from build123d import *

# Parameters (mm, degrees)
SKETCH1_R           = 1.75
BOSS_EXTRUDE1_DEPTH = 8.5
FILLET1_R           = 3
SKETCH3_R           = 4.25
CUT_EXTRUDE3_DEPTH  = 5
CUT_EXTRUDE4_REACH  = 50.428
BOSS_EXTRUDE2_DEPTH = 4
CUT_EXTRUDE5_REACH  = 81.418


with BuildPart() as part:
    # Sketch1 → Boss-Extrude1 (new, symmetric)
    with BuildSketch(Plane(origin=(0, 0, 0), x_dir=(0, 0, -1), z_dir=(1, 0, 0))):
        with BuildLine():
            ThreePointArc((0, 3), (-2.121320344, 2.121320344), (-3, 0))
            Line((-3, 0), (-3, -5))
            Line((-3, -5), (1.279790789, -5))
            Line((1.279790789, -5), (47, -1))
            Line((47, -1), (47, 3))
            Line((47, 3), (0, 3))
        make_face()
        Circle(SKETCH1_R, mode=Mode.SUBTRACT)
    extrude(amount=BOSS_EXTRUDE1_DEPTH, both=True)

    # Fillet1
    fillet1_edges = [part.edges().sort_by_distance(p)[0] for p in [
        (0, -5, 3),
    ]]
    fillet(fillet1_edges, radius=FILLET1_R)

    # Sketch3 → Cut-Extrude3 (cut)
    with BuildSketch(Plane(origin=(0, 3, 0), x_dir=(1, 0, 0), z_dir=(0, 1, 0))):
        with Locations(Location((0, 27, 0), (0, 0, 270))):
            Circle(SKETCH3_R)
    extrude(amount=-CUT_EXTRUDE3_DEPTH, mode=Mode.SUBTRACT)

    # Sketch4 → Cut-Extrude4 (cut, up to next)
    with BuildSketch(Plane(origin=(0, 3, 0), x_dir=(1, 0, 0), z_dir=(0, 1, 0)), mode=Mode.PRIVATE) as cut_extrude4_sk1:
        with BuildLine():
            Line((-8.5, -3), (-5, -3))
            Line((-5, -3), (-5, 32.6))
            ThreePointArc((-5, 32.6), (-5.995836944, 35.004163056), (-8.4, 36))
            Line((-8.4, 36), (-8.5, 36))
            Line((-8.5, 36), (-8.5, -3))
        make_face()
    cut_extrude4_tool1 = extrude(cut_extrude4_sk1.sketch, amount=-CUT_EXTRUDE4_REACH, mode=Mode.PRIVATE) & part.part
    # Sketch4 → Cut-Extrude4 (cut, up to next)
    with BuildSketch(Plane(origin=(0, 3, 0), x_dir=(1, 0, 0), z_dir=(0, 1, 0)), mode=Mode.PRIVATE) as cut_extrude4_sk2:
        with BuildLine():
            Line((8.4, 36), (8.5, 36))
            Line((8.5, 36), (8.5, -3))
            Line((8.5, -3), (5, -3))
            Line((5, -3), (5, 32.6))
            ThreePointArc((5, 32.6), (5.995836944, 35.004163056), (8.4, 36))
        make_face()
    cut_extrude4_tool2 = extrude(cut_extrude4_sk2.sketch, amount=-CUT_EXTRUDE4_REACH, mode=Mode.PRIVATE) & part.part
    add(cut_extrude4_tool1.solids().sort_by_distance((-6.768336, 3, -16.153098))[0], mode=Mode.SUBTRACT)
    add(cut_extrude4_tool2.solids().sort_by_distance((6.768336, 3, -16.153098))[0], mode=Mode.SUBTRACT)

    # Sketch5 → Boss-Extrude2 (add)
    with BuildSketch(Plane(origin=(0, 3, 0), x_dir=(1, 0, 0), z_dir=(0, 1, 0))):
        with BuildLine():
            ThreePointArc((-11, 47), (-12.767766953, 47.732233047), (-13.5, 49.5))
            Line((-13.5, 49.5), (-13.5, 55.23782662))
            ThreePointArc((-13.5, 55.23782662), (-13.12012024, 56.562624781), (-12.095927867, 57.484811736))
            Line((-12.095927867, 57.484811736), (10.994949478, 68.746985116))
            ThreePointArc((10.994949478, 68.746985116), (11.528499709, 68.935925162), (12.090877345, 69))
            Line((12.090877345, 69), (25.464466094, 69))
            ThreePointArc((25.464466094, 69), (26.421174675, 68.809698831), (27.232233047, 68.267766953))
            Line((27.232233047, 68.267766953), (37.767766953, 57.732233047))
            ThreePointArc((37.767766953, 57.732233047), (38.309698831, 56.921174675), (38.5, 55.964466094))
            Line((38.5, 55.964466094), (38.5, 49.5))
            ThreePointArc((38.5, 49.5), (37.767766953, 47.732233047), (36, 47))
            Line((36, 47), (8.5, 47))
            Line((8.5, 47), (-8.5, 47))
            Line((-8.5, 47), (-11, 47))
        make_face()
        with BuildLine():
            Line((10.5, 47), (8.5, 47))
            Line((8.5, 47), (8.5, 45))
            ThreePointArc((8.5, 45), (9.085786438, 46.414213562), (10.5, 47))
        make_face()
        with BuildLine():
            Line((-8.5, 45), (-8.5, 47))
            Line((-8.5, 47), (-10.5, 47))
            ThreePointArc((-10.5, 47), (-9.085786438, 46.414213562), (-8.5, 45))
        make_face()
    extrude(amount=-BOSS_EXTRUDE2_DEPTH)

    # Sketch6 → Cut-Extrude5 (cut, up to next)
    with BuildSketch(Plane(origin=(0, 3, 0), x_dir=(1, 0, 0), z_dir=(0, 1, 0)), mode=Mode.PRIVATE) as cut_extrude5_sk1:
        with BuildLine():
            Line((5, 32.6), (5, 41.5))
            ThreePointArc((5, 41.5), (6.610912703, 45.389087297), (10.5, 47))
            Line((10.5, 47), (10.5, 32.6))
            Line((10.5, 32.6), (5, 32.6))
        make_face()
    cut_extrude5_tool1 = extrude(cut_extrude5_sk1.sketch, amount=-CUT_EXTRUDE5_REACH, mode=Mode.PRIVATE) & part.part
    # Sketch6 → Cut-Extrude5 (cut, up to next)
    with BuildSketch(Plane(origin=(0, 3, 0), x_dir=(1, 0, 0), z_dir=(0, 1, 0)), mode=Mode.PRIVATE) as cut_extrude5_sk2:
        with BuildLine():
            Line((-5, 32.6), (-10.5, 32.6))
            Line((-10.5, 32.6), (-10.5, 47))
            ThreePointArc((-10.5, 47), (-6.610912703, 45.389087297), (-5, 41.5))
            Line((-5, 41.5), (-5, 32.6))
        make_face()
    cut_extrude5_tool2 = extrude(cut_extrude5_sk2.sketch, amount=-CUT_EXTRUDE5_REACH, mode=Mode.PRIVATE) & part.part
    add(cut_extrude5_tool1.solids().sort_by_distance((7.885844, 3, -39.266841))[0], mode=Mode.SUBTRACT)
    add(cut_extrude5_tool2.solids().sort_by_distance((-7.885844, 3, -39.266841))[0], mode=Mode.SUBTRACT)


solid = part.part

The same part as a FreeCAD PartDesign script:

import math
import FreeCAD as App
import Part
import Sketcher
from FreeCAD import Vector
Q = App.Units.Quantity


def edges_at(feature, points):
    """Names of the edges that pass closest to the given points."""
    edges = feature.Shape.Edges
    near = lambda p: min(range(len(edges)), key=lambda i: edges[i].distToShape(Part.Vertex(*p))[0])
    return sorted({f"Edge{near(p) + 1}" for p in points})

doc = App.newDocument("Part")
body = doc.addObject("PartDesign::Body", "Body")

# Sketch on YZ plane
sketch1 = body.newObject("Sketcher::SketchObject", "Sketch")
sketch1.AttachmentSupport = (doc.getObject("YZ_Plane"), [""])
sketch1.MapMode = "FlatFace"
sketch1.addGeometry(Part.ArcOfCircle(Part.Circle(Vector(0, 0, 0), Vector(0, 0, 1), 3), math.radians(0), math.radians(90)), False)
sketch1.addGeometry(Part.LineSegment(Vector(0, 3, 0), Vector(-5, 3, 0)), False)
sketch1.addGeometry(Part.LineSegment(Vector(-5, 3, 0), Vector(-5, -1.3, 0)), False)
sketch1.addGeometry(Part.LineSegment(Vector(-5, -1.3, 0), Vector(-1, -47, 0)), False)
sketch1.addGeometry(Part.LineSegment(Vector(-1, -47, 0), Vector(3, -47, 0)), False)
sketch1.addGeometry(Part.LineSegment(Vector(3, -47, 0), Vector(3, 0, 0)), False)
sketch1.addGeometry(Part.Circle(Vector(0, 0, 0), Vector(0, 0, 1), 1.8), False)
sketch1.addConstraint(Sketcher.Constraint("Tangent", 0, 2, 1, 1))
sketch1.addConstraint(Sketcher.Constraint("Coincident", 1, 2, 2, 1))
sketch1.addConstraint(Sketcher.Constraint("Coincident", 2, 2, 3, 1))
sketch1.addConstraint(Sketcher.Constraint("Coincident", 3, 2, 4, 1))
sketch1.addConstraint(Sketcher.Constraint("Coincident", 4, 2, 5, 1))
sketch1.addConstraint(Sketcher.Constraint("Tangent", 5, 2, 0, 1))
sketch1.addConstraint(Sketcher.Constraint("Horizontal", 1))
sketch1.addConstraint(Sketcher.Constraint("Vertical", 2))
sketch1.addConstraint(Sketcher.Constraint("Horizontal", 4))
sketch1.addConstraint(Sketcher.Constraint("Vertical", 5))
sketch1.addConstraint(Sketcher.Constraint("Coincident", 0, 3, -1, 1))
sketch1.addConstraint(Sketcher.Constraint("Coincident", 6, 3, -1, 1))
sketch1.addConstraint(Sketcher.Constraint("Radius", 0, 3.0))
sketch1.addConstraint(Sketcher.Constraint("Diameter", 6, 3.5))
sketch1.addConstraint(Sketcher.Constraint("DistanceX", 1, 2, 1, 1, 5.0))
sketch1.addConstraint(Sketcher.Constraint("DistanceX", 4, 1, 4, 2, 4.0))
sketch1.addConstraint(Sketcher.Constraint("DistanceY", 5, 1, 5, 2, 47.0))
sketch1.addConstraint(Sketcher.Constraint("Angle", 3, Q("-85 deg")))
pad1 = body.newObject("PartDesign::Pad", "Pad")
pad1.Profile = sketch1
pad1.Length = 17
pad1.Midplane = True
doc.recompute()

fillet = body.newObject("PartDesign::Fillet", "Fillet")
fillet.Base = (pad1, edges_at(pad1, [(0, -5, 3)]))
fillet.Radius = 3

# Sketch on XZ plane
sketch2 = body.newObject("Sketcher::SketchObject", "Sketch001")
sketch2.AttachmentSupport = (doc.getObject("XZ_Plane"), [""])
sketch2.MapMode = "FlatFace"
sketch2.AttachmentOffset = App.Placement(Vector(0, 0, -3), App.Rotation())
sketch2.addGeometry(Part.Circle(Vector(0, -27, 0), Vector(0, 0, 1), 4.2), False)
sketch2.addConstraint(Sketcher.Constraint("PointOnObject", 0, 3, -2))
sketch2.addConstraint(Sketcher.Constraint("Diameter", 0, 8.5))
sketch2.addConstraint(Sketcher.Constraint("DistanceY", 0, 3, -1, 1, 27.0))
pocket1 = body.newObject("PartDesign::Pocket", "Pocket")
pocket1.Profile = sketch2
pocket1.Length = 5
pocket1.Reversed = True

# Sketch on XZ plane
sketch3 = body.newObject("Sketcher::SketchObject", "Sketch002")
sketch3.AttachmentSupport = (doc.getObject("XZ_Plane"), [""])
sketch3.MapMode = "FlatFace"
sketch3.AttachmentOffset = App.Placement(Vector(0, 0, -3), App.Rotation())
sketch3.addGeometry(Part.LineSegment(Vector(-8.5, 3, 0), Vector(-5, 3, 0)), False)
sketch3.addGeometry(Part.LineSegment(Vector(-5, 3, 0), Vector(-5, -32.6, 0)), False)
sketch3.addGeometry(Part.ArcOfCircle(Part.Circle(Vector(-8.4, -32.6, 0), Vector(0, 0, 1), 3.4), math.radians(-90), math.radians(0)), False)
sketch3.addGeometry(Part.LineSegment(Vector(-8.4, -36, 0), Vector(-8.5, -36, 0)), False)
sketch3.addGeometry(Part.LineSegment(Vector(-8.5, -36, 0), Vector(-8.5, 3, 0)), False)
sketch3.addConstraint(Sketcher.Constraint("Coincident", 0, 2, 1, 1))
sketch3.addConstraint(Sketcher.Constraint("Tangent", 1, 2, 2, 2))
sketch3.addConstraint(Sketcher.Constraint("Tangent", 2, 1, 3, 1))
sketch3.addConstraint(Sketcher.Constraint("Coincident", 3, 2, 4, 1))
sketch3.addConstraint(Sketcher.Constraint("Coincident", 4, 2, 0, 1))
sketch3.addConstraint(Sketcher.Constraint("Horizontal", 0))
sketch3.addConstraint(Sketcher.Constraint("Vertical", 1))
sketch3.addConstraint(Sketcher.Constraint("Horizontal", 3))
sketch3.addConstraint(Sketcher.Constraint("Vertical", 4))
sketch3.addConstraint(Sketcher.Constraint("Radius", 2, 3.4))
sketch3.addConstraint(Sketcher.Constraint("DistanceY", 4, 1, 4, 2, 39.0))
sketch3.addConstraint(Sketcher.Constraint("DistanceX", 0, 1, 0, 2, 3.5))
sketch3.addConstraint(Sketcher.Constraint("DistanceX", 0, 2, -1, 1, 5.0))
sketch3.addConstraint(Sketcher.Constraint("DistanceY", -1, 1, 0, 2, 3.0))
pocket2 = body.newObject("PartDesign::Pocket", "Pocket001")
pocket2.Profile = sketch3
pocket2.Type = "UpToFirst"
pocket2.Reversed = True

# Sketch on XZ plane
sketch4 = body.newObject("Sketcher::SketchObject", "Sketch003")
sketch4.AttachmentSupport = (doc.getObject("XZ_Plane"), [""])
sketch4.MapMode = "FlatFace"
sketch4.AttachmentOffset = App.Placement(Vector(0, 0, -3), App.Rotation())
sketch4.addGeometry(Part.LineSegment(Vector(8.5, -36, 0), Vector(8.4, -36, 0)), False)
sketch4.addGeometry(Part.ArcOfCircle(Part.Circle(Vector(8.4, -32.6, 0), Vector(0, 0, 1), 3.4), math.radians(180), math.radians(270)), False)
sketch4.addGeometry(Part.LineSegment(Vector(5, -32.6, 0), Vector(5, 3, 0)), False)
sketch4.addGeometry(Part.LineSegment(Vector(5, 3, 0), Vector(8.5, 3, 0)), False)
sketch4.addGeometry(Part.LineSegment(Vector(8.5, 3, 0), Vector(8.5, -36, 0)), False)
sketch4.addConstraint(Sketcher.Constraint("Tangent", 0, 2, 1, 2))
sketch4.addConstraint(Sketcher.Constraint("Tangent", 1, 1, 2, 1))
sketch4.addConstraint(Sketcher.Constraint("Coincident", 2, 2, 3, 1))
sketch4.addConstraint(Sketcher.Constraint("Coincident", 3, 2, 4, 1))
sketch4.addConstraint(Sketcher.Constraint("Coincident", 4, 2, 0, 1))
sketch4.addConstraint(Sketcher.Constraint("Horizontal", 0))
sketch4.addConstraint(Sketcher.Constraint("Vertical", 2))
sketch4.addConstraint(Sketcher.Constraint("Horizontal", 3))
sketch4.addConstraint(Sketcher.Constraint("Vertical", 4))
sketch4.addConstraint(Sketcher.Constraint("Radius", 1, 3.4))
sketch4.addConstraint(Sketcher.Constraint("DistanceY", 4, 2, 4, 1, 39.0))
sketch4.addConstraint(Sketcher.Constraint("DistanceX", 0, 2, 0, 1, 0.1))
sketch4.addConstraint(Sketcher.Constraint("DistanceY", 0, 2, -1, 1, 36.0))
sketch4.addConstraint(Sketcher.Constraint("DistanceX", -1, 1, 1, 1, 5.0))
pocket3 = body.newObject("PartDesign::Pocket", "Pocket002")
pocket3.Profile = sketch4
pocket3.Type = "UpToFirst"
pocket3.Reversed = True

# Sketch on XZ plane
sketch5 = body.newObject("Sketcher::SketchObject", "Sketch004")
sketch5.AttachmentSupport = (doc.getObject("XZ_Plane"), [""])
sketch5.MapMode = "FlatFace"
sketch5.AttachmentOffset = App.Placement(Vector(0, 0, -3), App.Rotation())
sketch5.addGeometry(Part.ArcOfCircle(Part.Circle(Vector(-11, -49.5, 0), Vector(0, 0, 1), 2.5), math.radians(90), math.radians(180)), False)
sketch5.addGeometry(Part.LineSegment(Vector(-11, -47, 0), Vector(-10.5, -47, 0)), False)
sketch5.addGeometry(Part.ArcOfCircle(Part.Circle(Vector(-10.5, -45, 0), Vector(0, 0, 1), 2), math.radians(-90), math.radians(0)), False)
sketch5.addGeometry(Part.LineSegment(Vector(-8.5, -45, 0), Vector(-8.5, -47, 0)), False)
sketch5.addGeometry(Part.LineSegment(Vector(-8.5, -47, 0), Vector(8.5, -47, 0)), False)
sketch5.addGeometry(Part.LineSegment(Vector(8.5, -47, 0), Vector(8.5, -45, 0)), False)
sketch5.addGeometry(Part.ArcOfCircle(Part.Circle(Vector(10.5, -45, 0), Vector(0, 0, 1), 2), math.radians(-180), math.radians(-90)), False)
sketch5.addGeometry(Part.LineSegment(Vector(10.5, -47, 0), Vector(36, -47, 0)), False)
sketch5.addGeometry(Part.ArcOfCircle(Part.Circle(Vector(36, -49.5, 0), Vector(0, 0, 1), 2.5), math.radians(0), math.radians(90)), False)
sketch5.addGeometry(Part.LineSegment(Vector(38.5, -49.5, 0), Vector(38.5, -56, 0)), False)
sketch5.addGeometry(Part.ArcOfCircle(Part.Circle(Vector(36, -56, 0), Vector(0, 0, 1), 2.5), math.radians(-45), math.radians(0)), False)
sketch5.addGeometry(Part.LineSegment(Vector(37.8, -57.7, 0), Vector(27.2, -68.3, 0)), False)
sketch5.addGeometry(Part.ArcOfCircle(Part.Circle(Vector(25.5, -66.5, 0), Vector(0, 0, 1), 2.5), math.radians(-90), math.radians(-45)), False)
sketch5.addGeometry(Part.LineSegment(Vector(25.5, -69, 0), Vector(12.1, -69, 0)), False)
sketch5.addGeometry(Part.ArcOfCircle(Part.Circle(Vector(12.1, -66.5, 0), Vector(0, 0, 1), 2.5), math.radians(-116), math.radians(-90)), False)
sketch5.addGeometry(Part.LineSegment(Vector(11, -68.7, 0), Vector(-12.1, -57.5, 0)), False)
sketch5.addGeometry(Part.ArcOfCircle(Part.Circle(Vector(-11, -55.2, 0), Vector(0, 0, 1), 2.5), math.radians(-180), math.radians(-116)), False)
sketch5.addGeometry(Part.LineSegment(Vector(-13.5, -55.2, 0), Vector(-13.5, -49.5, 0)), False)
sketch5.addConstraint(Sketcher.Constraint("Tangent", 0, 1, 1, 1))
sketch5.addConstraint(Sketcher.Constraint("Tangent", 1, 2, 2, 1))
sketch5.addConstraint(Sketcher.Constraint("Tangent", 2, 2, 3, 1))
sketch5.addConstraint(Sketcher.Constraint("Coincident", 3, 2, 4, 1))
sketch5.addConstraint(Sketcher.Constraint("Coincident", 4, 2, 5, 1))
sketch5.addConstraint(Sketcher.Constraint("Tangent", 5, 2, 6, 1))
sketch5.addConstraint(Sketcher.Constraint("Tangent", 6, 2, 7, 1))
sketch5.addConstraint(Sketcher.Constraint("Tangent", 7, 2, 8, 2))
sketch5.addConstraint(Sketcher.Constraint("Tangent", 8, 1, 9, 1))
sketch5.addConstraint(Sketcher.Constraint("Tangent", 9, 2, 10, 2))
sketch5.addConstraint(Sketcher.Constraint("Tangent", 10, 1, 11, 1))
sketch5.addConstraint(Sketcher.Constraint("Tangent", 11, 2, 12, 2))
sketch5.addConstraint(Sketcher.Constraint("Tangent", 12, 1, 13, 1))
sketch5.addConstraint(Sketcher.Constraint("Tangent", 13, 2, 14, 2))
sketch5.addConstraint(Sketcher.Constraint("Tangent", 14, 1, 15, 1))
sketch5.addConstraint(Sketcher.Constraint("Tangent", 15, 2, 16, 2))
sketch5.addConstraint(Sketcher.Constraint("Tangent", 16, 1, 17, 1))
sketch5.addConstraint(Sketcher.Constraint("Tangent", 17, 2, 0, 2))
sketch5.addConstraint(Sketcher.Constraint("Horizontal", 1))
sketch5.addConstraint(Sketcher.Constraint("Vertical", 3))
sketch5.addConstraint(Sketcher.Constraint("Horizontal", 4))
sketch5.addConstraint(Sketcher.Constraint("Vertical", 5))
sketch5.addConstraint(Sketcher.Constraint("Horizontal", 7))
sketch5.addConstraint(Sketcher.Constraint("Vertical", 9))
sketch5.addConstraint(Sketcher.Constraint("Horizontal", 13))
sketch5.addConstraint(Sketcher.Constraint("Vertical", 17))
sketch5.addConstraint(Sketcher.Constraint("Equal", 2, 6))
sketch5.addConstraint(Sketcher.Constraint("Equal", 0, 8))
sketch5.addConstraint(Sketcher.Constraint("Equal", 8, 10))
sketch5.addConstraint(Sketcher.Constraint("Equal", 10, 12))
sketch5.addConstraint(Sketcher.Constraint("Equal", 12, 14))
sketch5.addConstraint(Sketcher.Constraint("Equal", 14, 16))
sketch5.addConstraint(Sketcher.Constraint("Symmetric", 2, 3, 6, 3, -2))
sketch5.addConstraint(Sketcher.Constraint("Horizontal", 1, 2, 3, 2))
sketch5.addConstraint(Sketcher.Constraint("Radius", 2, 2.0))
sketch5.addConstraint(Sketcher.Constraint("Radius", 0, 2.5))
sketch5.addConstraint(Sketcher.Constraint("DistanceX", 4, 1, 4, 2, 17.0))
sketch5.addConstraint(Sketcher.Constraint("Angle", 11, Q("-135 deg")))
sketch5.addConstraint(Sketcher.Constraint("Angle", 15, Q("154 deg")))
sketch5.addConstraint(Sketcher.Constraint("DistanceX", 1, 1, 1, 2, 0.5))
sketch5.addConstraint(Sketcher.Constraint("DistanceX", 7, 1, 7, 2, 25.5))
sketch5.addConstraint(Sketcher.Constraint("DistanceY", 2, 3, -1, 1, 45.0))
sketch5.addConstraint(Sketcher.Constraint("DistanceY", 12, 1, -1, 1, 69.0))
sketch5.addConstraint(Sketcher.Constraint("DistanceX", 13, 2, 13, 1, 13.373589))
sketch5.addConstraint(Sketcher.Constraint("DistanceY", 11, 2, 10, 3, 12.303301))
pad2 = body.newObject("PartDesign::Pad", "Pad001")
pad2.Profile = sketch5
pad2.Length = 4

# Sketch on XZ plane
sketch6 = body.newObject("Sketcher::SketchObject", "Sketch005")
sketch6.AttachmentSupport = (doc.getObject("XZ_Plane"), [""])
sketch6.MapMode = "FlatFace"
sketch6.AttachmentOffset = App.Placement(Vector(0, 0, -3), App.Rotation())
sketch6.addGeometry(Part.LineSegment(Vector(5, -42, 0), Vector(5, -33, 0)), False)
sketch6.addGeometry(Part.LineSegment(Vector(5, -33, 0), Vector(10, -33, 0)), False)
sketch6.addGeometry(Part.LineSegment(Vector(10, -33, 0), Vector(10, -47, 0)), False)
sketch6.addGeometry(Part.ArcOfCircle(Part.Circle(Vector(10, -42, 0), Vector(0, 0, 1), 5), math.radians(180), math.radians(270)), False)
sketch6.addConstraint(Sketcher.Constraint("Coincident", 0, 2, 1, 1))
sketch6.addConstraint(Sketcher.Constraint("Coincident", 1, 2, 2, 1))
sketch6.addConstraint(Sketcher.Constraint("Coincident", 2, 2, 3, 2))
sketch6.addConstraint(Sketcher.Constraint("Tangent", 3, 1, 0, 1))
sketch6.addConstraint(Sketcher.Constraint("Vertical", 0))
sketch6.addConstraint(Sketcher.Constraint("Horizontal", 1))
sketch6.addConstraint(Sketcher.Constraint("Vertical", 2))
sketch6.addConstraint(Sketcher.Constraint("Vertical", 3, 3, 1, 2))
sketch6.addConstraint(Sketcher.Constraint("Radius", 3, 5.5))
sketch6.addConstraint(Sketcher.Constraint("DistanceY", 0, 1, 0, 2, 8.9))
sketch6.addConstraint(Sketcher.Constraint("DistanceX", -1, 1, 0, 2, 5.0))
sketch6.addConstraint(Sketcher.Constraint("DistanceY", 2, 2, -1, 1, 47.0))
pocket4 = body.newObject("PartDesign::Pocket", "Pocket003")
pocket4.Profile = sketch6
pocket4.Type = "UpToFirst"
pocket4.Reversed = True

# Sketch on XZ plane
sketch7 = body.newObject("Sketcher::SketchObject", "Sketch006")
sketch7.AttachmentSupport = (doc.getObject("XZ_Plane"), [""])
sketch7.MapMode = "FlatFace"
sketch7.AttachmentOffset = App.Placement(Vector(0, 0, -3), App.Rotation())
sketch7.addGeometry(Part.LineSegment(Vector(-10, -33, 0), Vector(-5, -33, 0)), False)
sketch7.addGeometry(Part.LineSegment(Vector(-5, -33, 0), Vector(-5, -42, 0)), False)
sketch7.addGeometry(Part.ArcOfCircle(Part.Circle(Vector(-10, -42, 0), Vector(0, 0, 1), 5), math.radians(-90), math.radians(0)), False)
sketch7.addGeometry(Part.LineSegment(Vector(-10, -47, 0), Vector(-10, -33, 0)), False)
sketch7.addConstraint(Sketcher.Constraint("Coincident", 0, 2, 1, 1))
sketch7.addConstraint(Sketcher.Constraint("Tangent", 1, 2, 2, 2))
sketch7.addConstraint(Sketcher.Constraint("Coincident", 2, 1, 3, 1))
sketch7.addConstraint(Sketcher.Constraint("Coincident", 3, 2, 0, 1))
sketch7.addConstraint(Sketcher.Constraint("Horizontal", 0))
sketch7.addConstraint(Sketcher.Constraint("Vertical", 1))
sketch7.addConstraint(Sketcher.Constraint("Vertical", 3))
sketch7.addConstraint(Sketcher.Constraint("Radius", 2, 5.5))
sketch7.addConstraint(Sketcher.Constraint("DistanceX", 0, 1, 0, 2, 5.5))
sketch7.addConstraint(Sketcher.Constraint("DistanceY", 1, 2, 1, 1, 8.9))
sketch7.addConstraint(Sketcher.Constraint("DistanceX", 0, 2, -1, 1, 5.0))
sketch7.addConstraint(Sketcher.Constraint("DistanceY", 2, 1, -1, 1, 47.0))
pocket5 = body.newObject("PartDesign::Pocket", "Pocket004")
pocket5.Profile = sketch7
pocket5.Type = "UpToFirst"
pocket5.Reversed = True

doc.recompute()
